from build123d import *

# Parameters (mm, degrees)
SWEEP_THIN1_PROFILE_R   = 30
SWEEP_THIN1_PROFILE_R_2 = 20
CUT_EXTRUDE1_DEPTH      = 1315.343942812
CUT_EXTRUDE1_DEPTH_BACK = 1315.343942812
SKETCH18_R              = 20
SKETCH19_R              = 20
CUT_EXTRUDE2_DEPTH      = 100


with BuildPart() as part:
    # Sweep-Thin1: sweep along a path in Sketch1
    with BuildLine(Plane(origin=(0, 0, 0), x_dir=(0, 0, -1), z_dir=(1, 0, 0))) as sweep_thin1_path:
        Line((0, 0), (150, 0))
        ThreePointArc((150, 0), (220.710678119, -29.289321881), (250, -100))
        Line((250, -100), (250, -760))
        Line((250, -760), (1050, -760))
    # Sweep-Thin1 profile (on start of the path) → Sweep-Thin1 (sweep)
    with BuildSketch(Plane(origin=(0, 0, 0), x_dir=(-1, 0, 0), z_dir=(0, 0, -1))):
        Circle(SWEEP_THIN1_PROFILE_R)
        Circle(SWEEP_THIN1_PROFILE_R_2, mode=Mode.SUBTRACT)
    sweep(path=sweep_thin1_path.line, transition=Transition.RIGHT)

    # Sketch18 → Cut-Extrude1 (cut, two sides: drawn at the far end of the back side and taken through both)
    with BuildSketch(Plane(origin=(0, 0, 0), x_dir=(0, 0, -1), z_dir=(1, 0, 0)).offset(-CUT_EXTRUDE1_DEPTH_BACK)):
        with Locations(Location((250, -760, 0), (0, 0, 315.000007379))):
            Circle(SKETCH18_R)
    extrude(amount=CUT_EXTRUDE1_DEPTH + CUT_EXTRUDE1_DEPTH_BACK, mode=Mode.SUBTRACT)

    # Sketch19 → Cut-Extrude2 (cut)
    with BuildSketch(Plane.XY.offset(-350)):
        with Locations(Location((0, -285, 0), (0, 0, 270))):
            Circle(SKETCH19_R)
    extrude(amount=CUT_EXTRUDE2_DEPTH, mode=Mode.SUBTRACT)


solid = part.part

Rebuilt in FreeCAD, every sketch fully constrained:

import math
import FreeCAD as App
import Part
import Sketcher
from FreeCAD import Vector
Q = App.Units.Quantity

doc = App.newDocument("Part")
body = doc.addObject("PartDesign::Body", "Body")

# Sketch on XY plane
sketch1 = doc.addObject("Sketcher::SketchObject", "Sketch")
body.addObject(sketch1)
sketch1.AttachmentSupport = (doc.XY_Plane, [""])
sketch1.MapMode = "FlatFace"
sketch1.addGeometry(Part.Circle(Vector(0, 0, 0), Vector(0, 0, 1), 30), False)
sketch1.addGeometry(Part.Circle(Vector(0, 0, 0), Vector(0, 0, 1), 20), False)
sketch1.addConstraint(Sketcher.Constraint("Coincident", 0, 3, -1, 1))
sketch1.addConstraint(Sketcher.Constraint("Coincident", 1, 3, -1, 1))
sketch1.addConstraint(Sketcher.Constraint("Diameter", 0, Q("60 mm")))
sketch1.addConstraint(Sketcher.Constraint("Diameter", 1, Q("40 mm")))

# Sketch on YZ plane
sketch2 = doc.addObject("Sketcher::SketchObject", "Sketch001")
body.addObject(sketch2)
sketch2.AttachmentSupport = (doc.YZ_Plane, [""])
sketch2.MapMode = "FlatFace"
sketch2.addGeometry(Part.LineSegment(Vector(0, 0, 0), Vector(0, -150, 0)), False)
sketch2.addGeometry(Part.ArcOfCircle(Part.Circle(Vector(-100, -150, 0), Vector(0, 0, 1), 100), math.radians(-90), math.radians(0)), False)
sketch2.addGeometry(Part.LineSegment(Vector(-100, -250, 0), Vector(-760, -250, 0)), False)
sketch2.addGeometry(Part.LineSegment(Vector(-760, -250, 0), Vector(-760, -1050, 0)), False)
sketch2.addConstraint(Sketcher.Constraint("Tangent", 0, 2, 1, 2))
sketch2.addConstraint(Sketcher.Constraint("Tangent", 1, 1, 2, 1))
sketch2.addConstraint(Sketcher.Constraint("Coincident", 2, 2, 3, 1))
sketch2.addConstraint(Sketcher.Constraint("Vertical", 0))
sketch2.addConstraint(Sketcher.Constraint("Horizontal", 2))
sketch2.addConstraint(Sketcher.Constraint("Vertical", 3))
sketch2.addConstraint(Sketcher.Constraint("Coincident", 0, 1, -1, 1))
sketch2.addConstraint(Sketcher.Constraint("Radius", 1, Q("100 mm")))
sketch2.addConstraint(Sketcher.Constraint("DistanceX", 2, 2, 2, 1, Q("660 mm")))
sketch2.addConstraint(Sketcher.Constraint("DistanceY", 0, 2, 0, 1, Q("150 mm")))
sketch2.addConstraint(Sketcher.Constraint("DistanceY", 3, 2, 3, 1, Q("800 mm")))
doc.recompute()

additivepipe = doc.addObject("PartDesign::AdditivePipe", "AdditivePipe")
body.addObject(additivepipe)
additivepipe.Profile = sketch1
additivepipe.Spine = (sketch2, ["Edge1", "Edge2", "Edge3", "Edge4"])
additivepipe.Transition = "Right corner"

# Sketch on YZ plane
sketch3 = doc.addObject("Sketcher::SketchObject", "Sketch002")
body.addObject(sketch3)
sketch3.AttachmentSupport = (doc.YZ_Plane, [""])
sketch3.MapMode = "FlatFace"
sketch3.addGeometry(Part.Circle(Vector(-760, -250, 0), Vector(0, 0, 1), 20), False)
sketch3.addConstraint(Sketcher.Constraint("Diameter", 0, Q("40 mm")))
sketch3.addConstraint(Sketcher.Constraint("DistanceX", 0, 3, -1, 1, Q("760 mm")))
sketch3.addConstraint(Sketcher.Constraint("DistanceY", 0, 3, -1, 1, Q("250 mm")))
pocket1 = doc.addObject("PartDesign::Pocket", "Pocket")
body.addObject(pocket1)
pocket1.Profile = sketch3
pocket1.Type = "ThroughAll"
pocket1.Midplane = True

# Sketch on XY plane
sketch4 = doc.addObject("Sketcher::SketchObject", "Sketch003")
body.addObject(sketch4)
sketch4.AttachmentSupport = (doc.XY_Plane, [""])
sketch4.MapMode = "FlatFace"
sketch4.AttachmentOffset = App.Placement(Vector(0, 0, -350), App.Rotation())
sketch4.addGeometry(Part.Circle(Vector(0, -285, 0), Vector(0, 0, 1), 20), False)
sketch4.addConstraint(Sketcher.Constraint("PointOnObject", 0, 3, -2))
sketch4.addConstraint(Sketcher.Constraint("Diameter", 0, Q("40 mm")))
sketch4.addConstraint(Sketcher.Constraint("DistanceY", 0, 3, -1, 1, Q("285 mm")))
pocket2 = doc.addObject("PartDesign::Pocket", "Pocket001")
body.addObject(pocket2)
pocket2.Profile = sketch4
pocket2.Length = 100
pocket2.Reversed = True

doc.recompute()
